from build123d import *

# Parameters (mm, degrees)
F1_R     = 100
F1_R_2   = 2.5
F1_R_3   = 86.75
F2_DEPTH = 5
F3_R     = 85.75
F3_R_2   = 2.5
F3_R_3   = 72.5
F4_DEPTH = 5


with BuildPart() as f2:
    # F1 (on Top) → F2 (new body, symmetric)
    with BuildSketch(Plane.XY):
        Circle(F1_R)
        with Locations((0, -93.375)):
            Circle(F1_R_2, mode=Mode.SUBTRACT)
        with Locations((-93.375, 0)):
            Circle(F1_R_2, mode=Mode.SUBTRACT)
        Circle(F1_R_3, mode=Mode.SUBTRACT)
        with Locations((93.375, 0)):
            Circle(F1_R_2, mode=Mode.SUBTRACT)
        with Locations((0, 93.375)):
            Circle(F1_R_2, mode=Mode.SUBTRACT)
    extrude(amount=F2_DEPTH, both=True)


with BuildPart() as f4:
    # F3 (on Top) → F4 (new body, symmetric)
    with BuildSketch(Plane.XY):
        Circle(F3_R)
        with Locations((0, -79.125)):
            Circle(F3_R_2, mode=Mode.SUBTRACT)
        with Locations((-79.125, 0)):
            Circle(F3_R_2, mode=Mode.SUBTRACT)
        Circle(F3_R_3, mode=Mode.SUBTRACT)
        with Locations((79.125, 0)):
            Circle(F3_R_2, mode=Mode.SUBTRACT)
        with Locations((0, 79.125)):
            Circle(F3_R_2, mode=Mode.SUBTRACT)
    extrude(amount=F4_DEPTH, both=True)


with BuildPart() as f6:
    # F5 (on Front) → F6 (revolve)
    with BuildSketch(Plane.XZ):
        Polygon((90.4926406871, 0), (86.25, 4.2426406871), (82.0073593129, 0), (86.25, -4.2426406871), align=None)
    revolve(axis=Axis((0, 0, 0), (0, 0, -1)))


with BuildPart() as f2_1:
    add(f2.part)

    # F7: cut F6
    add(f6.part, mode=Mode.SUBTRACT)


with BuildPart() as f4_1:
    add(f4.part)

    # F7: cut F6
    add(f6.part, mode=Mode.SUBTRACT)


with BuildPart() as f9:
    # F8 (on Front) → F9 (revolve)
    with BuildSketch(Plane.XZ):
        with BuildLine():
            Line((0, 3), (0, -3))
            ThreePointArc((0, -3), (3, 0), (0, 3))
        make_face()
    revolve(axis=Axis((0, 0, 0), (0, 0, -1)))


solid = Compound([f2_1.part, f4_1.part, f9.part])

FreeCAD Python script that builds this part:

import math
import FreeCAD as App
import Part
import Sketcher
Q = App.Units.Quantity

doc = App.newDocument("Part")
params = doc.addObject("Spreadsheet::Sheet", "Params")
for row, (alias, value) in enumerate([
    ("sketch1_diameter", "200 mm"),
    ("sketch1_diameter2", "5 mm"),
    ("sketch1_diameter3", "173.5 mm"),
    ("pad1_length", "10 mm"),
    ("sketch2_diameter", "5 mm"),
    ("sketch2_diameter2", "145 mm"),
    ("sketch2_diameter3", "171.5 mm"),
    ("pad2_length", "10 mm"),
    ("sketch3_length", "6 mm"),
    ("revolution_angle", "360 deg"),
    ("sketch4_radius", "3 mm"),
    ("revolution2_angle", "360 deg"),
], start=1):
    params.set(f"A{row}", alias)
    params.set(f"B{row}", "=" + value)
    params.setAlias(f"B{row}", alias)

body = doc.addObject("PartDesign::Body", "Body")

# Sketch on XY plane
sketch1 = body.newObject("Sketcher::SketchObject", "Sketch")
sketch1.AttachmentSupport = (doc.getObject("XY_Plane"), [""])
sketch1.MapMode = "FlatFace"
sketch1.addGeometry([
    Part.Circle(App.Vector(0, 0, 0), App.Vector(0, 0, 1), 100),  # 0
    Part.Circle(App.Vector(0, -93.375, 0), App.Vector(0, 0, 1), 2.5),  # 1
    Part.Circle(App.Vector(-93.375, 0, 0), App.Vector(0, 0, 1), 2.5),  # 2
    Part.Circle(App.Vector(0, 0, 0), App.Vector(0, 0, 1), 86.75),  # 3
    Part.Circle(App.Vector(93.375, 0, 0), App.Vector(0, 0, 1), 2.5),  # 4
    Part.Circle(App.Vector(0, 93.375, 0), App.Vector(0, 0, 1), 2.5),  # 5
], False)
sketch1.addConstraint([
    Sketcher.Constraint("Coincident", 0, 3, -1, 1),
    Sketcher.Constraint("Coincident", 3, 3, -1, 1),
    Sketcher.Constraint("Equal", 1, 2),
    Sketcher.Constraint("Equal", 2, 4),
    Sketcher.Constraint("Equal", 4, 5),
    Sketcher.Constraint("Symmetric", 2, 3, 4, 3, -1, 1),
    Sketcher.Constraint("Symmetric", 1, 3, 5, 3, -1, 1),
    Sketcher.Constraint("PointOnObject", 1, 3, -2),
    Sketcher.Constraint("PointOnObject", 2, 3, -1),
    Sketcher.Constraint("Diameter", 0, Q("200 mm")),
    Sketcher.Constraint("Diameter", 1, Q("5 mm")),
    Sketcher.Constraint("Diameter", 3, Q("173.5 mm")),
    Sketcher.Constraint("DistanceX", 2, 3, 4, 3, Q("186.75 mm")),
    Sketcher.Constraint("DistanceY", 1, 3, 5, 3, Q("186.75 mm")),
])
sketch1.setExpression("Constraints[9]", "Params.sketch1_diameter")
sketch1.setExpression("Constraints[10]", "Params.sketch1_diameter2")
sketch1.setExpression("Constraints[11]", "Params.sketch1_diameter3")
pad1 = body.newObject("PartDesign::Pad", "Pad")
pad1.Profile = sketch1
pad1.setExpression("Length", "Params.pad1_length")
pad1.Midplane = True
body2 = doc.addObject("PartDesign::Body", "Body001")

# Sketch on XY plane
sketch2 = body2.newObject("Sketcher::SketchObject", "Sketch001")
sketch2.AttachmentSupport = (doc.getObject("XY_Plane001"), [""])
sketch2.MapMode = "FlatFace"
sketch2.addGeometry([
    Part.Circle(App.Vector(0, 0, 0), App.Vector(0, 0, 1), 85.75),  # 0
    Part.Circle(App.Vector(0, -79.125, 0), App.Vector(0, 0, 1), 2.5),  # 1
    Part.Circle(App.Vector(-79.125, 0, 0), App.Vector(0, 0, 1), 2.5),  # 2
    Part.Circle(App.Vector(0, 0, 0), App.Vector(0, 0, 1), 72.5),  # 3
    Part.Circle(App.Vector(79.125, 0, 0), App.Vector(0, 0, 1), 2.5),  # 4
    Part.Circle(App.Vector(0, 79.125, 0), App.Vector(0, 0, 1), 2.5),  # 5
], False)
sketch2.addConstraint([
    Sketcher.Constraint("Coincident", 0, 3, -1, 1),
    Sketcher.Constraint("Coincident", 3, 3, -1, 1),
    Sketcher.Constraint("Equal", 1, 2),
    Sketcher.Constraint("Equal", 2, 4),
    Sketcher.Constraint("Equal", 4, 5),
    Sketcher.Constraint("Symmetric", 2, 3, 4, 3, -1, 1),
    Sketcher.Constraint("Symmetric", 1, 3, 5, 3, -1, 1),
    Sketcher.Constraint("PointOnObject", 1, 3, -2),
    Sketcher.Constraint("PointOnObject", 2, 3, -1),
    Sketcher.Constraint("Diameter", 1, Q("5 mm")),
    Sketcher.Constraint("Diameter", 3, Q("145 mm")),
    Sketcher.Constraint("Diameter", 0, Q("171.5 mm")),
    Sketcher.Constraint("DistanceX", 2, 3, 4, 3, Q("158.25 mm")),
    Sketcher.Constraint("DistanceY", 1, 3, 5, 3, Q("158.25 mm")),
])
sketch2.setExpression("Constraints[9]", "Params.sketch2_diameter")
sketch2.setExpression("Constraints[10]", "Params.sketch2_diameter2")
sketch2.setExpression("Constraints[11]", "Params.sketch2_diameter3")
pad2 = body2.newObject("PartDesign::Pad", "Pad001")
pad2.Profile = sketch2
pad2.setExpression("Length", "Params.pad2_length")
pad2.Midplane = True
body3 = doc.addObject("PartDesign::Body", "Body002")

# Sketch on XZ plane
sketch3 = body3.newObject("Sketcher::SketchObject", "Sketch002")
sketch3.AttachmentSupport = (doc.getObject("XZ_Plane002"), [""])
sketch3.MapMode = "FlatFace"
sketch3.addGeometry([
    Part.LineSegment(App.Vector(90.492641, 0, 0), App.Vector(86.25, 4.242641, 0)),
    Part.LineSegment(App.Vector(86.25, 4.242641, 0), App.Vector(82.007359, 0, 0)),
    Part.LineSegment(App.Vector(82.007359, 0, 0), App.Vector(86.25, -4.242641, 0)),
    Part.LineSegment(App.Vector(86.25, -4.242641, 0), App.Vector(90.492641, 0, 0)),
], False)
sketch3.addConstraint([
    Sketcher.Constraint("Coincident", 0, 2, 1, 1),
    Sketcher.Constraint("Coincident", 1, 2, 2, 1),
    Sketcher.Constraint("Coincident", 2, 2, 3, 1),
    Sketcher.Constraint("Coincident", 3, 2, 0, 1),
    Sketcher.Constraint("Symmetric", 0, 2, 2, 2, -1),
    Sketcher.Constraint("PointOnObject", 1, 2, -1),
    Sketcher.Constraint("PointOnObject", 3, 2, -1),
    Sketcher.Constraint("Perpendicular", 0, 1),
    Sketcher.Constraint("Perpendicular", 1, 2),
    Sketcher.Constraint("Distance", 0, Q("6 mm")),
    Sketcher.Constraint("DistanceX", -1, 1, 0, 2, Q("86.25 mm")),
])
sketch3.setExpression("Constraints[9]", "Params.sketch3_length")
revolution = body3.newObject("PartDesign::Revolution", "Revolution")
revolution.Profile = sketch3
revolution.ReferenceAxis = (sketch3, ["V_Axis"])
revolution.setExpression("Angle", "Params.revolution_angle")
doc.recompute()

body4 = doc.addObject("PartDesign::Body", "Body003")
body4.BaseFeature = body3
boolean = body.newObject("PartDesign::Boolean", "Boolean")
boolean.Type = "Cut"
boolean.addObjects([body4])
doc.recompute()

boolean2 = body2.newObject("PartDesign::Boolean", "Boolean001")
boolean2.Type = "Cut"
boolean2.addObjects([body3])
body5 = doc.addObject("PartDesign::Body", "Body004")

# Sketch on XZ plane
sketch4 = body5.newObject("Sketcher::SketchObject", "Sketch003")
sketch4.AttachmentSupport = (doc.getObject("XZ_Plane004"), [""])
sketch4.MapMode = "FlatFace"
sketch4.addGeometry([
    Part.LineSegment(App.Vector(0, 3, 0), App.Vector(0, -3, 0)),
    Part.ArcOfCircle(Part.Circle(App.Vector(0, 0, 0), App.Vector(0, 0, 1), 3), math.radians(-90), math.radians(90)),
], False)
sketch4.addConstraint([
    Sketcher.Constraint("Coincident", 0, 1, 1, 2),
    Sketcher.Constraint("Coincident", 1, 1, 0, 2),
    Sketcher.Constraint("Vertical", 0),
    Sketcher.Constraint("Coincident", 1, 3, -1, 1),
    Sketcher.Constraint("PointOnObject", 0, 1, -2),
    Sketcher.Constraint("Radius", 1, Q("3 mm")),
])
sketch4.setExpression("Constraints[5]", "Params.sketch4_radius")
revolution2 = body5.newObject("PartDesign::Revolution", "Revolution001")
revolution2.Profile = sketch4
revolution2.ReferenceAxis = (sketch4, ["V_Axis"])
revolution2.setExpression("Angle", "Params.revolution2_angle")

doc.recompute()
